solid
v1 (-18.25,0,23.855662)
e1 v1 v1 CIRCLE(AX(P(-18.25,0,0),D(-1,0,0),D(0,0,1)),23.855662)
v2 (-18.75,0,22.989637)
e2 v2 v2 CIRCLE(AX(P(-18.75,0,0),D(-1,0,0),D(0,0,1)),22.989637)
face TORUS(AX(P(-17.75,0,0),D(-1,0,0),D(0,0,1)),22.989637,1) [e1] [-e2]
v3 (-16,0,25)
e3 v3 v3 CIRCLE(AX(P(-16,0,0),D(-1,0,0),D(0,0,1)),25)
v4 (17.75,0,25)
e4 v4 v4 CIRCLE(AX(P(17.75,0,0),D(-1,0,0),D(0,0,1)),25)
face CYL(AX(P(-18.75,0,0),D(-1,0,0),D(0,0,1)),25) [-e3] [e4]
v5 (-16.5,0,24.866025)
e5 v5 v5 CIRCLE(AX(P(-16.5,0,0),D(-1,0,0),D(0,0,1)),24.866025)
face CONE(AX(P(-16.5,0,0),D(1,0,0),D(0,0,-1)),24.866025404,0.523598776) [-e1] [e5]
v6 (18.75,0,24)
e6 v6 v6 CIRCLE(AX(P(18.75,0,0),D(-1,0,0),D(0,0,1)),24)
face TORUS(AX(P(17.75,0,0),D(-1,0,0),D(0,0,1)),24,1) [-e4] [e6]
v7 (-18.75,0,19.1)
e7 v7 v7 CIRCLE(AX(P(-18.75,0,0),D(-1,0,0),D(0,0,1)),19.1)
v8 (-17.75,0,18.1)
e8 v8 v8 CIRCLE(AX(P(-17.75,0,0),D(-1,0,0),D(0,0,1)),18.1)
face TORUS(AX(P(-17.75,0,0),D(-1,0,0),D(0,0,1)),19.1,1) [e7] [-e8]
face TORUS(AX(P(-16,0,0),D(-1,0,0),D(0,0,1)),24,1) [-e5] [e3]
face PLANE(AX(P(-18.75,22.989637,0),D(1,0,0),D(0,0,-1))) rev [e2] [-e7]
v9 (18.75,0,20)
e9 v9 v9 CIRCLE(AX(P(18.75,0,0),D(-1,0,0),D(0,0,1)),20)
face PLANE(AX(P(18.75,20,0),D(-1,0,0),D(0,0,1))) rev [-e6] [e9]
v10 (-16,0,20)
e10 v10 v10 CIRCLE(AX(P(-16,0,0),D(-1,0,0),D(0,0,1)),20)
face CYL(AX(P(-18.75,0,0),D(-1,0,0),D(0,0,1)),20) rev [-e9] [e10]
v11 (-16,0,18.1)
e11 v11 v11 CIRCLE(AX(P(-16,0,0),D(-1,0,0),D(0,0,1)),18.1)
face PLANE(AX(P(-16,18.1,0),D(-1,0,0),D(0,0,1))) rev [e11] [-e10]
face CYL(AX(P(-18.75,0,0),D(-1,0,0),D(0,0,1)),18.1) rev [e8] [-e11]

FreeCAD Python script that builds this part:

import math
import FreeCAD as App
import Part
import Sketcher
from FreeCAD import Vector
Q = App.Units.Quantity

doc = App.newDocument("Part")
body = doc.addObject("PartDesign::Body", "Body")

# Sketch on XY plane
sketch1 = body.newObject("Sketcher::SketchObject", "Sketch")
sketch1.AttachmentSupport = (doc.getObject("XY_Plane"), [""])
sketch1.MapMode = "FlatFace"
sketch1.addGeometry([
    Part.LineSegment(Vector(18.8, 20, 0), Vector(18.8, 24, 0)),  # 0
    Part.ArcOfCircle(Part.Circle(Vector(17.7, 24, 0), Vector(0, 0, 1), 1), math.radians(0), math.radians(90)),  # 1
    Part.LineSegment(Vector(17.8, 25, 0), Vector(-16, 25, 0)),  # 2
    Part.ArcOfCircle(Part.Circle(Vector(-16, 24, 0), Vector(0, 0, 1), 1), math.radians(90), math.radians(120)),  # 3
    Part.LineSegment(Vector(-16.5, 24.9, 0), Vector(-18.2, 23.9, 0)),  # 4
    Part.ArcOfCircle(Part.Circle(Vector(-17.8, 23, 0), Vector(0, 0, 1), 1), math.radians(120), math.radians(180)),  # 5
    Part.LineSegment(Vector(-18.8, 23, 0), Vector(-18.8, 19.1, 0)),  # 6
    Part.ArcOfCircle(Part.Circle(Vector(-17.7, 19.1, 0), Vector(0, 0, 1), 1), math.radians(-180), math.radians(-90)),  # 7
    Part.LineSegment(Vector(-17.8, 18.1, 0), Vector(-16, 18.1, 0)),  # 8
    Part.LineSegment(Vector(-16, 18.1, 0), Vector(-16, 20, 0)),  # 9
    Part.LineSegment(Vector(-16, 20, 0), Vector(18.8, 20, 0)),  # 10
], False)
sketch1.addConstraint([
    Sketcher.Constraint("Tangent", 0, 2, 1, 1),
    Sketcher.Constraint("Tangent", 1, 2, 2, 1),
    Sketcher.Constraint("Tangent", 2, 2, 3, 1),
    Sketcher.Constraint("Tangent", 3, 2, 4, 1),
    Sketcher.Constraint("Tangent", 4, 2, 5, 1),
    Sketcher.Constraint("Tangent", 5, 2, 6, 1),
    Sketcher.Constraint("Tangent", 6, 2, 7, 1),
    Sketcher.Constraint("Tangent", 7, 2, 8, 1),
    Sketcher.Constraint("Coincident", 8, 2, 9, 1),
    Sketcher.Constraint("Coincident", 9, 2, 10, 1),
    Sketcher.Constraint("Coincident", 10, 2, 0, 1),
    Sketcher.Constraint("Vertical", 0),
    Sketcher.Constraint("Horizontal", 2),
    Sketcher.Constraint("Vertical", 6),
    Sketcher.Constraint("Horizontal", 8),
    Sketcher.Constraint("Vertical", 9),
    Sketcher.Constraint("Horizontal", 10),
    Sketcher.Constraint("Equal", 1, 3),
    Sketcher.Constraint("Equal", 3, 5),
    Sketcher.Constraint("Equal", 5, 7),
    Sketcher.Constraint("Vertical", 2, 2, 8, 2),
    Sketcher.Constraint("Radius", 1, 1.0),
    Sketcher.Constraint("DistanceY", 0, 1, 0, 2, 4.0),
    Sketcher.Constraint("Angle", 4, Q("-150 deg")),
    Sketcher.Constraint("DistanceY", 9, 1, 9, 2, 1.9),
    Sketcher.Constraint("DistanceY", -1, 1, 1, 3, 24.0),
    Sketcher.Constraint("DistanceX", 3, 3, -1, 1, 16.0),
    Sketcher.Constraint("DistanceX", 2, 2, 2, 1, 33.75),
    Sketcher.Constraint("DistanceX", 8, 1, 8, 2, 1.75),
])
revolution = body.newObject("PartDesign::Revolution", "Revolution")
revolution.Profile = sketch1
revolution.ReferenceAxis = (sketch1, ["H_Axis"])
revolution.Angle = 360

doc.recompute()
